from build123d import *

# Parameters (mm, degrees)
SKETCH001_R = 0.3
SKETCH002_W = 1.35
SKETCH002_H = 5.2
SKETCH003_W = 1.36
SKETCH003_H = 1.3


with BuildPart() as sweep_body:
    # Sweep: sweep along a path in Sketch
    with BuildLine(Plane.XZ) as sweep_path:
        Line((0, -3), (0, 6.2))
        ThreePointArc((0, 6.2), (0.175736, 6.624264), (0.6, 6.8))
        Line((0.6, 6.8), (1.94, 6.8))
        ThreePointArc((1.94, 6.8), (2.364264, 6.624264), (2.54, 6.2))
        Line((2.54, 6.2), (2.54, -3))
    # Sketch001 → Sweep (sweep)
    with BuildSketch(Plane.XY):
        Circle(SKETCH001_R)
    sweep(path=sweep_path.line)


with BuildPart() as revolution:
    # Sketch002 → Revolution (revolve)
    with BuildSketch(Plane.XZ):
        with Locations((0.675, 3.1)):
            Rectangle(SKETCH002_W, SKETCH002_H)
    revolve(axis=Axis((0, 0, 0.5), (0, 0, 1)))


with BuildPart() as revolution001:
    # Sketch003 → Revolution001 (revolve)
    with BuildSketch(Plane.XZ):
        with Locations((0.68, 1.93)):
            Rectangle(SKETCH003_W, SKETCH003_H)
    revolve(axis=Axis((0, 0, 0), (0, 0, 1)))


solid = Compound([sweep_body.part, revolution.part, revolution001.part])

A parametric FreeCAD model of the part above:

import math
import FreeCAD as App
import Part
import Sketcher

V = App.Vector
Q = App.Units.Quantity

doc = App.newDocument("Part")
body = doc.addObject("PartDesign::Body", "Body")

# Sketch on XY plane
sketch1 = doc.addObject("Sketcher::SketchObject", "Sketch")
body.addObject(sketch1)
sketch1.AttachmentSupport = (doc.XY_Plane, [""])
sketch1.MapMode = "FlatFace"
sketch1.addGeometry(Part.Circle(V(0, 0, 0), V(0, 0, 1), 0.3), False)
sketch1.addConstraint(Sketcher.Constraint("Coincident", 0, 3, -1, 1))
sketch1.addConstraint(Sketcher.Constraint("Diameter", 0, Q("0.6 mm")))

# Sketch on XZ plane
sketch2 = doc.addObject("Sketcher::SketchObject", "Sketch001")
body.addObject(sketch2)
sketch2.AttachmentSupport = (doc.XZ_Plane, [""])
sketch2.MapMode = "FlatFace"
sketch2.addGeometry(Part.LineSegment(V(0, -3, 0), V(0, 6.2, 0)), False)
sketch2.addGeometry(Part.ArcOfCircle(Part.Circle(V(0.6, 6.2, 0), V(0, 0, 1), 0.6), math.radians(90), math.radians(180)), False)
sketch2.addGeometry(Part.LineSegment(V(0.6, 6.8, 0), V(1.9, 6.8, 0)), False)
sketch2.addGeometry(Part.ArcOfCircle(Part.Circle(V(1.9, 6.2, 0), V(0, 0, 1), 0.6), math.radians(0), math.radians(90)), False)
sketch2.addGeometry(Part.LineSegment(V(2.5, 6.2, 0), V(2.5, -3, 0)), False)
sketch2.addConstraint(Sketcher.Constraint("Tangent", 0, 2, 1, 2))
sketch2.addConstraint(Sketcher.Constraint("Tangent", 1, 1, 2, 1))
sketch2.addConstraint(Sketcher.Constraint("Tangent", 2, 2, 3, 2))
sketch2.addConstraint(Sketcher.Constraint("Tangent", 3, 1, 4, 1))
sketch2.addConstraint(Sketcher.Constraint("Vertical", 0))
sketch2.addConstraint(Sketcher.Constraint("Horizontal", 2))
sketch2.addConstraint(Sketcher.Constraint("Vertical", 4))
sketch2.addConstraint(Sketcher.Constraint("Equal", 1, 3))
sketch2.addConstraint(Sketcher.Constraint("PointOnObject", 0, 1, -2))
sketch2.addConstraint(Sketcher.Constraint("Horizontal", 0, 1, 4, 2))
sketch2.addConstraint(Sketcher.Constraint("Radius", 1, Q("0.6 mm")))
sketch2.addConstraint(Sketcher.Constraint("DistanceY", 0, 1, 0, 2, Q("9.2 mm")))
sketch2.addConstraint(Sketcher.Constraint("DistanceY", 0, 1, -1, 1, Q("3 mm")))
sketch2.addConstraint(Sketcher.Constraint("DistanceX", 2, 1, 2, 2, Q("1.34 mm")))
doc.recompute()

additivepipe = doc.addObject("PartDesign::AdditivePipe", "AdditivePipe")
body.addObject(additivepipe)
additivepipe.Profile = sketch1
additivepipe.Spine = (sketch2, ["Edge1", "Edge2", "Edge3", "Edge4", "Edge5"])
body2 = doc.addObject("PartDesign::Body", "Body001")

# Sketch on XZ plane
sketch3 = doc.addObject("Sketcher::SketchObject", "Sketch002")
body2.addObject(sketch3)
sketch3.AttachmentSupport = (doc.getObject("XZ_Plane001"), [""])
sketch3.MapMode = "FlatFace"
sketch3.addGeometry(Part.LineSegment(V(0, 5.7, 0), V(0, 0.5, 0)), False)
sketch3.addGeometry(Part.LineSegment(V(0, 0.5, 0), V(1.4, 0.5, 0)), False)
sketch3.addGeometry(Part.LineSegment(V(1.4, 0.5, 0), V(1.4, 5.7, 0)), False)
sketch3.addGeometry(Part.LineSegment(V(1.4, 5.7, 0), V(0, 5.7, 0)), False)
sketch3.addConstraint(Sketcher.Constraint("Coincident", 0, 2, 1, 1))
sketch3.addConstraint(Sketcher.Constraint("Coincident", 1, 2, 2, 1))
sketch3.addConstraint(Sketcher.Constraint("Coincident", 2, 2, 3, 1))
sketch3.addConstraint(Sketcher.Constraint("Coincident", 3, 2, 0, 1))
sketch3.addConstraint(Sketcher.Constraint("Vertical", 0))
sketch3.addConstraint(Sketcher.Constraint("Horizontal", 1))
sketch3.addConstraint(Sketcher.Constraint("Vertical", 2))
sketch3.addConstraint(Sketcher.Constraint("Horizontal", 3))
sketch3.addConstraint(Sketcher.Constraint("PointOnObject", 0, 2, -2))
sketch3.addConstraint(Sketcher.Constraint("DistanceY", 0, 2, 0, 1, Q("5.2 mm")))
sketch3.addConstraint(Sketcher.Constraint("DistanceX", 1, 1, 1, 2, Q("1.35 mm")))
sketch3.addConstraint(Sketcher.Constraint("DistanceY", -1, 1, 0, 2, Q("0.5 mm")))
revolution = doc.addObject("PartDesign::Revolution", "Revolution")
body2.addObject(revolution)
revolution.Profile = sketch3
revolution.ReferenceAxis = (sketch3, ["V_Axis"])
revolution.Angle = 360
body3 = doc.addObject("PartDesign::Body", "Body002")

# Sketch on XZ plane
sketch4 = doc.addObject("Sketcher::SketchObject", "Sketch003")
body3.addObject(sketch4)
sketch4.AttachmentSupport = (doc.getObject("XZ_Plane002"), [""])
sketch4.MapMode = "FlatFace"
sketch4.addGeometry(Part.LineSegment(V(0, 2.6, 0), V(0, 1.3, 0)), False)
sketch4.addGeometry(Part.LineSegment(V(0, 1.3, 0), V(1.4, 1.3, 0)), False)
sketch4.addGeometry(Part.LineSegment(V(1.4, 1.3, 0), V(1.4, 2.6, 0)), False)
sketch4.addGeometry(Part.LineSegment(V(1.4, 2.6, 0), V(0, 2.6, 0)), False)
sketch4.addConstraint(Sketcher.Constraint("Coincident", 0, 2, 1, 1))
sketch4.addConstraint(Sketcher.Constraint("Coincident", 1, 2, 2, 1))
sketch4.addConstraint(Sketcher.Constraint("Coincident", 2, 2, 3, 1))
sketch4.addConstraint(Sketcher.Constraint("Coincident", 3, 2, 0, 1))
sketch4.addConstraint(Sketcher.Constraint("Vertical", 0))
sketch4.addConstraint(Sketcher.Constraint("Horizontal", 1))
sketch4.addConstraint(Sketcher.Constraint("Vertical", 2))
sketch4.addConstraint(Sketcher.Constraint("Horizontal", 3))
sketch4.addConstraint(Sketcher.Constraint("PointOnObject", 0, 2, -2))
sketch4.addConstraint(Sketcher.Constraint("DistanceY", 0, 2, 0, 1, Q("1.3 mm")))
sketch4.addConstraint(Sketcher.Constraint("DistanceX", 1, 1, 1, 2, Q("1.36 mm")))
sketch4.addConstraint(Sketcher.Constraint("DistanceY", -1, 1, 0, 2, Q("1.28 mm")))
revolution2 = doc.addObject("PartDesign::Revolution", "Revolution001")
body3.addObject(revolution2)
revolution2.Profile = sketch4
revolution2.ReferenceAxis = (sketch4, ["V_Axis"])
revolution2.Angle = 360

doc.recompute()
